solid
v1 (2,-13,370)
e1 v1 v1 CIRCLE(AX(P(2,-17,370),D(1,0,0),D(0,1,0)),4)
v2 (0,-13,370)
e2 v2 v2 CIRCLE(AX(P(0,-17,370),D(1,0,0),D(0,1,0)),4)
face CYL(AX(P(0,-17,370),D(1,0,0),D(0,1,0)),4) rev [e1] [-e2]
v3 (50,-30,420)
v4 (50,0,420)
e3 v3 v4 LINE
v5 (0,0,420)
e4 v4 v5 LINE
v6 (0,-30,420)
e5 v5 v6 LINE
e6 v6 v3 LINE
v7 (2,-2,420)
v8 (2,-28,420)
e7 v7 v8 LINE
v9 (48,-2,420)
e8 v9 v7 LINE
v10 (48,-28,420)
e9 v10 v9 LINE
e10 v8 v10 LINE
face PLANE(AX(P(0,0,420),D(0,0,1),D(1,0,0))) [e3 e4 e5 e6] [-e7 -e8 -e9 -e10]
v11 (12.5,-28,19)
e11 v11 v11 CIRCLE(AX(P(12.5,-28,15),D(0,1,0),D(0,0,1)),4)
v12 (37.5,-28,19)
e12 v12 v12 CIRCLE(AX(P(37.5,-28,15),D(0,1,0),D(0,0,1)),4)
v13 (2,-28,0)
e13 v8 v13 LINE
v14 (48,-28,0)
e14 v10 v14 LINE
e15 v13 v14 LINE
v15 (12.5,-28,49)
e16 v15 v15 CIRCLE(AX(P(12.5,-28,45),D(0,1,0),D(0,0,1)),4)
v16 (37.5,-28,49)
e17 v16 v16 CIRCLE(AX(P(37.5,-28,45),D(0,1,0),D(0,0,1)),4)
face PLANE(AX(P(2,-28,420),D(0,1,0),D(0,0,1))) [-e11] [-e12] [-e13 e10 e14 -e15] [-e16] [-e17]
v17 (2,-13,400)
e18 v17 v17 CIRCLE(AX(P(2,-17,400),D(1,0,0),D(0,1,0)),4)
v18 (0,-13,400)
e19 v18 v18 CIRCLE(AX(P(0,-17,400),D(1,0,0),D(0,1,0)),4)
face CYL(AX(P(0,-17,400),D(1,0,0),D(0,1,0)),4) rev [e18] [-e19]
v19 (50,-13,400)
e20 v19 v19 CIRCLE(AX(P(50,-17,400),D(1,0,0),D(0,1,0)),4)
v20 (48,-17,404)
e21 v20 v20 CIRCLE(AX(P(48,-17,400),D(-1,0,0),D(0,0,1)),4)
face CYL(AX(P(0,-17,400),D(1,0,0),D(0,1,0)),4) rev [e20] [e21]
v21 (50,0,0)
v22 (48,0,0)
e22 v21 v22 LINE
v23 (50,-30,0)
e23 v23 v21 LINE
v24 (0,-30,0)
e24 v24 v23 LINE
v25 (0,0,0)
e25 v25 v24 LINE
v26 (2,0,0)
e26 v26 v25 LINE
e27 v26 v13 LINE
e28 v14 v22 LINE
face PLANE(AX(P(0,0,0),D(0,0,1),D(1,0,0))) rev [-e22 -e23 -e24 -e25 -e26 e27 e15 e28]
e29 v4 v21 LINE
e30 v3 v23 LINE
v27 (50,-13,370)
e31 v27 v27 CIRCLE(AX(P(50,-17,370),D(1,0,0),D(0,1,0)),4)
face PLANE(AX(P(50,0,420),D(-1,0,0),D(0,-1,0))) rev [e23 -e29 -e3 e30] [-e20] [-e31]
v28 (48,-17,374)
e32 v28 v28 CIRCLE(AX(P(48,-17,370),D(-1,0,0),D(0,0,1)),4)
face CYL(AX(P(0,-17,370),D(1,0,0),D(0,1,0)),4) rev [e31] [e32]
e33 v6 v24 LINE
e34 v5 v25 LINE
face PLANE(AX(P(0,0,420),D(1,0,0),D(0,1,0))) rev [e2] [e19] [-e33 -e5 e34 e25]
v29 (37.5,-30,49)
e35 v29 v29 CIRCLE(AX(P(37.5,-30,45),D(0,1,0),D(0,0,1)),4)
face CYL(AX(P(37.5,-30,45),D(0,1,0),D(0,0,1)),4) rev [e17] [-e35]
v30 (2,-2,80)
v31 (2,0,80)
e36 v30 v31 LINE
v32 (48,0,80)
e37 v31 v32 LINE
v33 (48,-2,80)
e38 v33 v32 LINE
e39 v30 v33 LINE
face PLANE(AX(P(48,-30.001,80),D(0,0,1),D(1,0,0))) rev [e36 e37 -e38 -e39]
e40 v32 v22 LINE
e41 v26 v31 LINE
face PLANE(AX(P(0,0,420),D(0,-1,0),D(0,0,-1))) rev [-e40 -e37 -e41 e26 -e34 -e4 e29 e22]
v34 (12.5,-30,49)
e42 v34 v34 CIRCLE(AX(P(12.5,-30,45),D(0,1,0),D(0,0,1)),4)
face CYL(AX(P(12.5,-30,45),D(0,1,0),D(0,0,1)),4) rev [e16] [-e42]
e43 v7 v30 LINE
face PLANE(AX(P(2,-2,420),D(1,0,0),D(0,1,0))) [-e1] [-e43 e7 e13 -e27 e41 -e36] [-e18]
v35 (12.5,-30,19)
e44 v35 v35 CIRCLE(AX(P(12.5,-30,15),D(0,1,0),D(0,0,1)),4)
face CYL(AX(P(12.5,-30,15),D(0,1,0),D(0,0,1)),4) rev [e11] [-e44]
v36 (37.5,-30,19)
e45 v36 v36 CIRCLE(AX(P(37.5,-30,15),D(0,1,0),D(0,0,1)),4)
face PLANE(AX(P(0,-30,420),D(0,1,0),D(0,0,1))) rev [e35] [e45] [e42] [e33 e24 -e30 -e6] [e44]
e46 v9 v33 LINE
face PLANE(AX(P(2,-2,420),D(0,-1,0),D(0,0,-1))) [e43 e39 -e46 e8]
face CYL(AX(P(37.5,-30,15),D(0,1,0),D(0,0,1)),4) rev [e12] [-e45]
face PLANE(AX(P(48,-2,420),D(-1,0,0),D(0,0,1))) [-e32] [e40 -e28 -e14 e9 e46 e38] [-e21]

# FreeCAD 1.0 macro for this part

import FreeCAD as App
import Part
import Sketcher
Q = App.Units.Quantity


def add_polygon(sketch, points):
    """Adds a closed chain of lines whose ends are joined by coincident constraints."""
    first, n = sketch.GeometryCount, len(points)
    for a, b in zip(points, points[1:] + points[:1]):
        sketch.addGeometry(Part.LineSegment(App.Vector(*a, 0), App.Vector(*b, 0)), False)
    for i in range(n):
        sketch.addConstraint(Sketcher.Constraint("Coincident", first + i, 2, first + (i + 1) % n, 1))

doc = App.newDocument("Part")
params = doc.addObject("Spreadsheet::Sheet", "Params")
for row, (alias, value) in enumerate([
    ("sketch1_width", "50 mm"),
    ("sketch1_width2", "46 mm"),
    ("sketch1_height", "30 mm"),
    ("sketch1_height2", "26 mm"),
    ("pad1_length", "420 mm"),
    ("sketch2_diameter", "8 mm"),
    ("sketch3_diameter", "8 mm"),
    ("sketch4_width", "46 mm"),
    ("sketch4_height", "80 mm"),
], start=1):
    params.set(f"A{row}", alias)
    params.set(f"B{row}", "=" + value)
    params.setAlias(f"B{row}", alias)

body = doc.addObject("PartDesign::Body", "Body")

# Sketch on XY plane
sketch1 = body.newObject("Sketcher::SketchObject", "Sketch")
sketch1.AttachmentSupport = (doc.getObject("XY_Plane"), [""])
sketch1.MapMode = "FlatFace"
add_polygon(sketch1, [(0, 0), (0, -30), (50, -30), (50, 0)])  # lines 0-3
add_polygon(sketch1, [(48, -28), (2, -28), (2, -2), (48, -2)])  # lines 4-7
sketch1.addConstraint([
    Sketcher.Constraint("Vertical", 0),
    Sketcher.Constraint("Horizontal", 1),
    Sketcher.Constraint("Vertical", 2),
    Sketcher.Constraint("Horizontal", 3),
    Sketcher.Constraint("Horizontal", 4),
    Sketcher.Constraint("Vertical", 5),
    Sketcher.Constraint("Horizontal", 6),
    Sketcher.Constraint("Vertical", 7),
    Sketcher.Constraint("Coincident", 3, 2, -1, 1),
    Sketcher.Constraint("DistanceX", 1, 1, 1, 2, Q("50 mm")),
    Sketcher.Constraint("DistanceX", 4, 2, 4, 1, Q("46 mm")),
    Sketcher.Constraint("DistanceY", 0, 2, 0, 1, Q("30 mm")),
    Sketcher.Constraint("DistanceY", 5, 1, 5, 2, Q("26 mm")),
    Sketcher.Constraint("DistanceX", -1, 1, 4, 2, Q("2 mm")),
    Sketcher.Constraint("DistanceY", 4, 2, -1, 1, Q("28 mm")),
])
sketch1.setExpression("Constraints[17]", "Params.sketch1_width")
sketch1.setExpression("Constraints[18]", "Params.sketch1_width2")
sketch1.setExpression("Constraints[19]", "Params.sketch1_height")
sketch1.setExpression("Constraints[20]", "Params.sketch1_height2")
pad1 = body.newObject("PartDesign::Pad", "Pad")
pad1.Profile = sketch1
pad1.setExpression("Length", "Params.pad1_length")

# Sketch on XZ plane
sketch2 = body.newObject("Sketcher::SketchObject", "Sketch001")
sketch2.AttachmentSupport = (doc.getObject("XZ_Plane"), [""])
sketch2.MapMode = "FlatFace"
sketch2.AttachmentOffset = App.Placement(App.Vector(0, 0, 28), App.Rotation())
sketch2.addGeometry([
    Part.Circle(App.Vector(37.5, 45, 0), App.Vector(0, 0, 1), 4),
    Part.Circle(App.Vector(12.5, 45, 0), App.Vector(0, 0, 1), 4),
    Part.Circle(App.Vector(12.5, 15, 0), App.Vector(0, 0, 1), 4),
    Part.Circle(App.Vector(37.5, 15, 0), App.Vector(0, 0, 1), 4),
], False)
sketch2.addConstraint([
    Sketcher.Constraint("Equal", 0, 1),
    Sketcher.Constraint("Equal", 1, 2),
    Sketcher.Constraint("Equal", 2, 3),
    Sketcher.Constraint("Horizontal", 0, 3, 1, 3),
    Sketcher.Constraint("Horizontal", 2, 3, 3, 3),
    Sketcher.Constraint("Vertical", 1, 3, 2, 3),
    Sketcher.Constraint("Vertical", 0, 3, 3, 3),
    Sketcher.Constraint("Diameter", 0, Q("8 mm")),
    Sketcher.Constraint("DistanceY", -1, 1, 0, 3, Q("45 mm")),
    Sketcher.Constraint("DistanceY", -1, 1, 2, 3, Q("15 mm")),
    Sketcher.Constraint("DistanceX", 1, 3, 0, 3, Q("25 mm")),
    Sketcher.Constraint("DistanceX", -1, 1, 0, 3, Q("37.5 mm")),
])
sketch2.setExpression("Constraints[7]", "Params.sketch2_diameter")
pocket1 = body.newObject("PartDesign::Pocket", "Pocket")
pocket1.Profile = sketch2
pocket1.Type = "ThroughAll"
pocket1.Reversed = True

# Sketch on YZ plane
sketch3 = body.newObject("Sketcher::SketchObject", "Sketch002")
sketch3.AttachmentSupport = (doc.getObject("YZ_Plane"), [""])
sketch3.MapMode = "FlatFace"
sketch3.AttachmentOffset = App.Placement(App.Vector(0, 0, 50), App.Rotation())
sketch3.addGeometry([
    Part.Circle(App.Vector(-17, 400, 0), App.Vector(0, 0, 1), 4),
    Part.Circle(App.Vector(-17, 370, 0), App.Vector(0, 0, 1), 4),
], False)
sketch3.addConstraint([
    Sketcher.Constraint("Equal", 0, 1),
    Sketcher.Constraint("Vertical", 0, 3, 1, 3),
    Sketcher.Constraint("Diameter", 0, Q("8 mm")),
    Sketcher.Constraint("DistanceX", 0, 3, -1, 1, Q("17 mm")),
    Sketcher.Constraint("DistanceY", -1, 1, 0, 3, Q("400 mm")),
    Sketcher.Constraint("DistanceY", -1, 1, 1, 3, Q("370 mm")),
])
sketch3.setExpression("Constraints[2]", "Params.sketch3_diameter")
pocket2 = body.newObject("PartDesign::Pocket", "Pocket001")
pocket2.Profile = sketch3
pocket2.Type = "ThroughAll"

# Sketch on XZ plane
sketch4 = body.newObject("Sketcher::SketchObject", "Sketch003")
sketch4.AttachmentSupport = (doc.getObject("XZ_Plane"), [""])
sketch4.MapMode = "FlatFace"
add_polygon(sketch4, [(2, 0), (2, 80), (48, 80), (48, 0)])  # lines 0-3
sketch4.addConstraint([
    Sketcher.Constraint("Vertical", 0),
    Sketcher.Constraint("Horizontal", 1),
    Sketcher.Constraint("Vertical", 2),
    Sketcher.Constraint("Horizontal", 3),
    Sketcher.Constraint("PointOnObject", 2, 2, -1),
    Sketcher.Constraint("DistanceX", 1, 1, 1, 2, Q("46 mm")),
    Sketcher.Constraint("DistanceY", 0, 1, 0, 2, Q("80 mm")),
    Sketcher.Constraint("DistanceX", -1, 1, 0, 2, Q("2 mm")),
])
sketch4.setExpression("Constraints[9]", "Params.sketch4_width")
sketch4.setExpression("Constraints[10]", "Params.sketch4_height")
pocket3 = body.newObject("PartDesign::Pocket", "Pocket002")
pocket3.Profile = sketch4
pocket3.Type = "UpToFirst"
pocket3.Reversed = True

doc.recompute()
